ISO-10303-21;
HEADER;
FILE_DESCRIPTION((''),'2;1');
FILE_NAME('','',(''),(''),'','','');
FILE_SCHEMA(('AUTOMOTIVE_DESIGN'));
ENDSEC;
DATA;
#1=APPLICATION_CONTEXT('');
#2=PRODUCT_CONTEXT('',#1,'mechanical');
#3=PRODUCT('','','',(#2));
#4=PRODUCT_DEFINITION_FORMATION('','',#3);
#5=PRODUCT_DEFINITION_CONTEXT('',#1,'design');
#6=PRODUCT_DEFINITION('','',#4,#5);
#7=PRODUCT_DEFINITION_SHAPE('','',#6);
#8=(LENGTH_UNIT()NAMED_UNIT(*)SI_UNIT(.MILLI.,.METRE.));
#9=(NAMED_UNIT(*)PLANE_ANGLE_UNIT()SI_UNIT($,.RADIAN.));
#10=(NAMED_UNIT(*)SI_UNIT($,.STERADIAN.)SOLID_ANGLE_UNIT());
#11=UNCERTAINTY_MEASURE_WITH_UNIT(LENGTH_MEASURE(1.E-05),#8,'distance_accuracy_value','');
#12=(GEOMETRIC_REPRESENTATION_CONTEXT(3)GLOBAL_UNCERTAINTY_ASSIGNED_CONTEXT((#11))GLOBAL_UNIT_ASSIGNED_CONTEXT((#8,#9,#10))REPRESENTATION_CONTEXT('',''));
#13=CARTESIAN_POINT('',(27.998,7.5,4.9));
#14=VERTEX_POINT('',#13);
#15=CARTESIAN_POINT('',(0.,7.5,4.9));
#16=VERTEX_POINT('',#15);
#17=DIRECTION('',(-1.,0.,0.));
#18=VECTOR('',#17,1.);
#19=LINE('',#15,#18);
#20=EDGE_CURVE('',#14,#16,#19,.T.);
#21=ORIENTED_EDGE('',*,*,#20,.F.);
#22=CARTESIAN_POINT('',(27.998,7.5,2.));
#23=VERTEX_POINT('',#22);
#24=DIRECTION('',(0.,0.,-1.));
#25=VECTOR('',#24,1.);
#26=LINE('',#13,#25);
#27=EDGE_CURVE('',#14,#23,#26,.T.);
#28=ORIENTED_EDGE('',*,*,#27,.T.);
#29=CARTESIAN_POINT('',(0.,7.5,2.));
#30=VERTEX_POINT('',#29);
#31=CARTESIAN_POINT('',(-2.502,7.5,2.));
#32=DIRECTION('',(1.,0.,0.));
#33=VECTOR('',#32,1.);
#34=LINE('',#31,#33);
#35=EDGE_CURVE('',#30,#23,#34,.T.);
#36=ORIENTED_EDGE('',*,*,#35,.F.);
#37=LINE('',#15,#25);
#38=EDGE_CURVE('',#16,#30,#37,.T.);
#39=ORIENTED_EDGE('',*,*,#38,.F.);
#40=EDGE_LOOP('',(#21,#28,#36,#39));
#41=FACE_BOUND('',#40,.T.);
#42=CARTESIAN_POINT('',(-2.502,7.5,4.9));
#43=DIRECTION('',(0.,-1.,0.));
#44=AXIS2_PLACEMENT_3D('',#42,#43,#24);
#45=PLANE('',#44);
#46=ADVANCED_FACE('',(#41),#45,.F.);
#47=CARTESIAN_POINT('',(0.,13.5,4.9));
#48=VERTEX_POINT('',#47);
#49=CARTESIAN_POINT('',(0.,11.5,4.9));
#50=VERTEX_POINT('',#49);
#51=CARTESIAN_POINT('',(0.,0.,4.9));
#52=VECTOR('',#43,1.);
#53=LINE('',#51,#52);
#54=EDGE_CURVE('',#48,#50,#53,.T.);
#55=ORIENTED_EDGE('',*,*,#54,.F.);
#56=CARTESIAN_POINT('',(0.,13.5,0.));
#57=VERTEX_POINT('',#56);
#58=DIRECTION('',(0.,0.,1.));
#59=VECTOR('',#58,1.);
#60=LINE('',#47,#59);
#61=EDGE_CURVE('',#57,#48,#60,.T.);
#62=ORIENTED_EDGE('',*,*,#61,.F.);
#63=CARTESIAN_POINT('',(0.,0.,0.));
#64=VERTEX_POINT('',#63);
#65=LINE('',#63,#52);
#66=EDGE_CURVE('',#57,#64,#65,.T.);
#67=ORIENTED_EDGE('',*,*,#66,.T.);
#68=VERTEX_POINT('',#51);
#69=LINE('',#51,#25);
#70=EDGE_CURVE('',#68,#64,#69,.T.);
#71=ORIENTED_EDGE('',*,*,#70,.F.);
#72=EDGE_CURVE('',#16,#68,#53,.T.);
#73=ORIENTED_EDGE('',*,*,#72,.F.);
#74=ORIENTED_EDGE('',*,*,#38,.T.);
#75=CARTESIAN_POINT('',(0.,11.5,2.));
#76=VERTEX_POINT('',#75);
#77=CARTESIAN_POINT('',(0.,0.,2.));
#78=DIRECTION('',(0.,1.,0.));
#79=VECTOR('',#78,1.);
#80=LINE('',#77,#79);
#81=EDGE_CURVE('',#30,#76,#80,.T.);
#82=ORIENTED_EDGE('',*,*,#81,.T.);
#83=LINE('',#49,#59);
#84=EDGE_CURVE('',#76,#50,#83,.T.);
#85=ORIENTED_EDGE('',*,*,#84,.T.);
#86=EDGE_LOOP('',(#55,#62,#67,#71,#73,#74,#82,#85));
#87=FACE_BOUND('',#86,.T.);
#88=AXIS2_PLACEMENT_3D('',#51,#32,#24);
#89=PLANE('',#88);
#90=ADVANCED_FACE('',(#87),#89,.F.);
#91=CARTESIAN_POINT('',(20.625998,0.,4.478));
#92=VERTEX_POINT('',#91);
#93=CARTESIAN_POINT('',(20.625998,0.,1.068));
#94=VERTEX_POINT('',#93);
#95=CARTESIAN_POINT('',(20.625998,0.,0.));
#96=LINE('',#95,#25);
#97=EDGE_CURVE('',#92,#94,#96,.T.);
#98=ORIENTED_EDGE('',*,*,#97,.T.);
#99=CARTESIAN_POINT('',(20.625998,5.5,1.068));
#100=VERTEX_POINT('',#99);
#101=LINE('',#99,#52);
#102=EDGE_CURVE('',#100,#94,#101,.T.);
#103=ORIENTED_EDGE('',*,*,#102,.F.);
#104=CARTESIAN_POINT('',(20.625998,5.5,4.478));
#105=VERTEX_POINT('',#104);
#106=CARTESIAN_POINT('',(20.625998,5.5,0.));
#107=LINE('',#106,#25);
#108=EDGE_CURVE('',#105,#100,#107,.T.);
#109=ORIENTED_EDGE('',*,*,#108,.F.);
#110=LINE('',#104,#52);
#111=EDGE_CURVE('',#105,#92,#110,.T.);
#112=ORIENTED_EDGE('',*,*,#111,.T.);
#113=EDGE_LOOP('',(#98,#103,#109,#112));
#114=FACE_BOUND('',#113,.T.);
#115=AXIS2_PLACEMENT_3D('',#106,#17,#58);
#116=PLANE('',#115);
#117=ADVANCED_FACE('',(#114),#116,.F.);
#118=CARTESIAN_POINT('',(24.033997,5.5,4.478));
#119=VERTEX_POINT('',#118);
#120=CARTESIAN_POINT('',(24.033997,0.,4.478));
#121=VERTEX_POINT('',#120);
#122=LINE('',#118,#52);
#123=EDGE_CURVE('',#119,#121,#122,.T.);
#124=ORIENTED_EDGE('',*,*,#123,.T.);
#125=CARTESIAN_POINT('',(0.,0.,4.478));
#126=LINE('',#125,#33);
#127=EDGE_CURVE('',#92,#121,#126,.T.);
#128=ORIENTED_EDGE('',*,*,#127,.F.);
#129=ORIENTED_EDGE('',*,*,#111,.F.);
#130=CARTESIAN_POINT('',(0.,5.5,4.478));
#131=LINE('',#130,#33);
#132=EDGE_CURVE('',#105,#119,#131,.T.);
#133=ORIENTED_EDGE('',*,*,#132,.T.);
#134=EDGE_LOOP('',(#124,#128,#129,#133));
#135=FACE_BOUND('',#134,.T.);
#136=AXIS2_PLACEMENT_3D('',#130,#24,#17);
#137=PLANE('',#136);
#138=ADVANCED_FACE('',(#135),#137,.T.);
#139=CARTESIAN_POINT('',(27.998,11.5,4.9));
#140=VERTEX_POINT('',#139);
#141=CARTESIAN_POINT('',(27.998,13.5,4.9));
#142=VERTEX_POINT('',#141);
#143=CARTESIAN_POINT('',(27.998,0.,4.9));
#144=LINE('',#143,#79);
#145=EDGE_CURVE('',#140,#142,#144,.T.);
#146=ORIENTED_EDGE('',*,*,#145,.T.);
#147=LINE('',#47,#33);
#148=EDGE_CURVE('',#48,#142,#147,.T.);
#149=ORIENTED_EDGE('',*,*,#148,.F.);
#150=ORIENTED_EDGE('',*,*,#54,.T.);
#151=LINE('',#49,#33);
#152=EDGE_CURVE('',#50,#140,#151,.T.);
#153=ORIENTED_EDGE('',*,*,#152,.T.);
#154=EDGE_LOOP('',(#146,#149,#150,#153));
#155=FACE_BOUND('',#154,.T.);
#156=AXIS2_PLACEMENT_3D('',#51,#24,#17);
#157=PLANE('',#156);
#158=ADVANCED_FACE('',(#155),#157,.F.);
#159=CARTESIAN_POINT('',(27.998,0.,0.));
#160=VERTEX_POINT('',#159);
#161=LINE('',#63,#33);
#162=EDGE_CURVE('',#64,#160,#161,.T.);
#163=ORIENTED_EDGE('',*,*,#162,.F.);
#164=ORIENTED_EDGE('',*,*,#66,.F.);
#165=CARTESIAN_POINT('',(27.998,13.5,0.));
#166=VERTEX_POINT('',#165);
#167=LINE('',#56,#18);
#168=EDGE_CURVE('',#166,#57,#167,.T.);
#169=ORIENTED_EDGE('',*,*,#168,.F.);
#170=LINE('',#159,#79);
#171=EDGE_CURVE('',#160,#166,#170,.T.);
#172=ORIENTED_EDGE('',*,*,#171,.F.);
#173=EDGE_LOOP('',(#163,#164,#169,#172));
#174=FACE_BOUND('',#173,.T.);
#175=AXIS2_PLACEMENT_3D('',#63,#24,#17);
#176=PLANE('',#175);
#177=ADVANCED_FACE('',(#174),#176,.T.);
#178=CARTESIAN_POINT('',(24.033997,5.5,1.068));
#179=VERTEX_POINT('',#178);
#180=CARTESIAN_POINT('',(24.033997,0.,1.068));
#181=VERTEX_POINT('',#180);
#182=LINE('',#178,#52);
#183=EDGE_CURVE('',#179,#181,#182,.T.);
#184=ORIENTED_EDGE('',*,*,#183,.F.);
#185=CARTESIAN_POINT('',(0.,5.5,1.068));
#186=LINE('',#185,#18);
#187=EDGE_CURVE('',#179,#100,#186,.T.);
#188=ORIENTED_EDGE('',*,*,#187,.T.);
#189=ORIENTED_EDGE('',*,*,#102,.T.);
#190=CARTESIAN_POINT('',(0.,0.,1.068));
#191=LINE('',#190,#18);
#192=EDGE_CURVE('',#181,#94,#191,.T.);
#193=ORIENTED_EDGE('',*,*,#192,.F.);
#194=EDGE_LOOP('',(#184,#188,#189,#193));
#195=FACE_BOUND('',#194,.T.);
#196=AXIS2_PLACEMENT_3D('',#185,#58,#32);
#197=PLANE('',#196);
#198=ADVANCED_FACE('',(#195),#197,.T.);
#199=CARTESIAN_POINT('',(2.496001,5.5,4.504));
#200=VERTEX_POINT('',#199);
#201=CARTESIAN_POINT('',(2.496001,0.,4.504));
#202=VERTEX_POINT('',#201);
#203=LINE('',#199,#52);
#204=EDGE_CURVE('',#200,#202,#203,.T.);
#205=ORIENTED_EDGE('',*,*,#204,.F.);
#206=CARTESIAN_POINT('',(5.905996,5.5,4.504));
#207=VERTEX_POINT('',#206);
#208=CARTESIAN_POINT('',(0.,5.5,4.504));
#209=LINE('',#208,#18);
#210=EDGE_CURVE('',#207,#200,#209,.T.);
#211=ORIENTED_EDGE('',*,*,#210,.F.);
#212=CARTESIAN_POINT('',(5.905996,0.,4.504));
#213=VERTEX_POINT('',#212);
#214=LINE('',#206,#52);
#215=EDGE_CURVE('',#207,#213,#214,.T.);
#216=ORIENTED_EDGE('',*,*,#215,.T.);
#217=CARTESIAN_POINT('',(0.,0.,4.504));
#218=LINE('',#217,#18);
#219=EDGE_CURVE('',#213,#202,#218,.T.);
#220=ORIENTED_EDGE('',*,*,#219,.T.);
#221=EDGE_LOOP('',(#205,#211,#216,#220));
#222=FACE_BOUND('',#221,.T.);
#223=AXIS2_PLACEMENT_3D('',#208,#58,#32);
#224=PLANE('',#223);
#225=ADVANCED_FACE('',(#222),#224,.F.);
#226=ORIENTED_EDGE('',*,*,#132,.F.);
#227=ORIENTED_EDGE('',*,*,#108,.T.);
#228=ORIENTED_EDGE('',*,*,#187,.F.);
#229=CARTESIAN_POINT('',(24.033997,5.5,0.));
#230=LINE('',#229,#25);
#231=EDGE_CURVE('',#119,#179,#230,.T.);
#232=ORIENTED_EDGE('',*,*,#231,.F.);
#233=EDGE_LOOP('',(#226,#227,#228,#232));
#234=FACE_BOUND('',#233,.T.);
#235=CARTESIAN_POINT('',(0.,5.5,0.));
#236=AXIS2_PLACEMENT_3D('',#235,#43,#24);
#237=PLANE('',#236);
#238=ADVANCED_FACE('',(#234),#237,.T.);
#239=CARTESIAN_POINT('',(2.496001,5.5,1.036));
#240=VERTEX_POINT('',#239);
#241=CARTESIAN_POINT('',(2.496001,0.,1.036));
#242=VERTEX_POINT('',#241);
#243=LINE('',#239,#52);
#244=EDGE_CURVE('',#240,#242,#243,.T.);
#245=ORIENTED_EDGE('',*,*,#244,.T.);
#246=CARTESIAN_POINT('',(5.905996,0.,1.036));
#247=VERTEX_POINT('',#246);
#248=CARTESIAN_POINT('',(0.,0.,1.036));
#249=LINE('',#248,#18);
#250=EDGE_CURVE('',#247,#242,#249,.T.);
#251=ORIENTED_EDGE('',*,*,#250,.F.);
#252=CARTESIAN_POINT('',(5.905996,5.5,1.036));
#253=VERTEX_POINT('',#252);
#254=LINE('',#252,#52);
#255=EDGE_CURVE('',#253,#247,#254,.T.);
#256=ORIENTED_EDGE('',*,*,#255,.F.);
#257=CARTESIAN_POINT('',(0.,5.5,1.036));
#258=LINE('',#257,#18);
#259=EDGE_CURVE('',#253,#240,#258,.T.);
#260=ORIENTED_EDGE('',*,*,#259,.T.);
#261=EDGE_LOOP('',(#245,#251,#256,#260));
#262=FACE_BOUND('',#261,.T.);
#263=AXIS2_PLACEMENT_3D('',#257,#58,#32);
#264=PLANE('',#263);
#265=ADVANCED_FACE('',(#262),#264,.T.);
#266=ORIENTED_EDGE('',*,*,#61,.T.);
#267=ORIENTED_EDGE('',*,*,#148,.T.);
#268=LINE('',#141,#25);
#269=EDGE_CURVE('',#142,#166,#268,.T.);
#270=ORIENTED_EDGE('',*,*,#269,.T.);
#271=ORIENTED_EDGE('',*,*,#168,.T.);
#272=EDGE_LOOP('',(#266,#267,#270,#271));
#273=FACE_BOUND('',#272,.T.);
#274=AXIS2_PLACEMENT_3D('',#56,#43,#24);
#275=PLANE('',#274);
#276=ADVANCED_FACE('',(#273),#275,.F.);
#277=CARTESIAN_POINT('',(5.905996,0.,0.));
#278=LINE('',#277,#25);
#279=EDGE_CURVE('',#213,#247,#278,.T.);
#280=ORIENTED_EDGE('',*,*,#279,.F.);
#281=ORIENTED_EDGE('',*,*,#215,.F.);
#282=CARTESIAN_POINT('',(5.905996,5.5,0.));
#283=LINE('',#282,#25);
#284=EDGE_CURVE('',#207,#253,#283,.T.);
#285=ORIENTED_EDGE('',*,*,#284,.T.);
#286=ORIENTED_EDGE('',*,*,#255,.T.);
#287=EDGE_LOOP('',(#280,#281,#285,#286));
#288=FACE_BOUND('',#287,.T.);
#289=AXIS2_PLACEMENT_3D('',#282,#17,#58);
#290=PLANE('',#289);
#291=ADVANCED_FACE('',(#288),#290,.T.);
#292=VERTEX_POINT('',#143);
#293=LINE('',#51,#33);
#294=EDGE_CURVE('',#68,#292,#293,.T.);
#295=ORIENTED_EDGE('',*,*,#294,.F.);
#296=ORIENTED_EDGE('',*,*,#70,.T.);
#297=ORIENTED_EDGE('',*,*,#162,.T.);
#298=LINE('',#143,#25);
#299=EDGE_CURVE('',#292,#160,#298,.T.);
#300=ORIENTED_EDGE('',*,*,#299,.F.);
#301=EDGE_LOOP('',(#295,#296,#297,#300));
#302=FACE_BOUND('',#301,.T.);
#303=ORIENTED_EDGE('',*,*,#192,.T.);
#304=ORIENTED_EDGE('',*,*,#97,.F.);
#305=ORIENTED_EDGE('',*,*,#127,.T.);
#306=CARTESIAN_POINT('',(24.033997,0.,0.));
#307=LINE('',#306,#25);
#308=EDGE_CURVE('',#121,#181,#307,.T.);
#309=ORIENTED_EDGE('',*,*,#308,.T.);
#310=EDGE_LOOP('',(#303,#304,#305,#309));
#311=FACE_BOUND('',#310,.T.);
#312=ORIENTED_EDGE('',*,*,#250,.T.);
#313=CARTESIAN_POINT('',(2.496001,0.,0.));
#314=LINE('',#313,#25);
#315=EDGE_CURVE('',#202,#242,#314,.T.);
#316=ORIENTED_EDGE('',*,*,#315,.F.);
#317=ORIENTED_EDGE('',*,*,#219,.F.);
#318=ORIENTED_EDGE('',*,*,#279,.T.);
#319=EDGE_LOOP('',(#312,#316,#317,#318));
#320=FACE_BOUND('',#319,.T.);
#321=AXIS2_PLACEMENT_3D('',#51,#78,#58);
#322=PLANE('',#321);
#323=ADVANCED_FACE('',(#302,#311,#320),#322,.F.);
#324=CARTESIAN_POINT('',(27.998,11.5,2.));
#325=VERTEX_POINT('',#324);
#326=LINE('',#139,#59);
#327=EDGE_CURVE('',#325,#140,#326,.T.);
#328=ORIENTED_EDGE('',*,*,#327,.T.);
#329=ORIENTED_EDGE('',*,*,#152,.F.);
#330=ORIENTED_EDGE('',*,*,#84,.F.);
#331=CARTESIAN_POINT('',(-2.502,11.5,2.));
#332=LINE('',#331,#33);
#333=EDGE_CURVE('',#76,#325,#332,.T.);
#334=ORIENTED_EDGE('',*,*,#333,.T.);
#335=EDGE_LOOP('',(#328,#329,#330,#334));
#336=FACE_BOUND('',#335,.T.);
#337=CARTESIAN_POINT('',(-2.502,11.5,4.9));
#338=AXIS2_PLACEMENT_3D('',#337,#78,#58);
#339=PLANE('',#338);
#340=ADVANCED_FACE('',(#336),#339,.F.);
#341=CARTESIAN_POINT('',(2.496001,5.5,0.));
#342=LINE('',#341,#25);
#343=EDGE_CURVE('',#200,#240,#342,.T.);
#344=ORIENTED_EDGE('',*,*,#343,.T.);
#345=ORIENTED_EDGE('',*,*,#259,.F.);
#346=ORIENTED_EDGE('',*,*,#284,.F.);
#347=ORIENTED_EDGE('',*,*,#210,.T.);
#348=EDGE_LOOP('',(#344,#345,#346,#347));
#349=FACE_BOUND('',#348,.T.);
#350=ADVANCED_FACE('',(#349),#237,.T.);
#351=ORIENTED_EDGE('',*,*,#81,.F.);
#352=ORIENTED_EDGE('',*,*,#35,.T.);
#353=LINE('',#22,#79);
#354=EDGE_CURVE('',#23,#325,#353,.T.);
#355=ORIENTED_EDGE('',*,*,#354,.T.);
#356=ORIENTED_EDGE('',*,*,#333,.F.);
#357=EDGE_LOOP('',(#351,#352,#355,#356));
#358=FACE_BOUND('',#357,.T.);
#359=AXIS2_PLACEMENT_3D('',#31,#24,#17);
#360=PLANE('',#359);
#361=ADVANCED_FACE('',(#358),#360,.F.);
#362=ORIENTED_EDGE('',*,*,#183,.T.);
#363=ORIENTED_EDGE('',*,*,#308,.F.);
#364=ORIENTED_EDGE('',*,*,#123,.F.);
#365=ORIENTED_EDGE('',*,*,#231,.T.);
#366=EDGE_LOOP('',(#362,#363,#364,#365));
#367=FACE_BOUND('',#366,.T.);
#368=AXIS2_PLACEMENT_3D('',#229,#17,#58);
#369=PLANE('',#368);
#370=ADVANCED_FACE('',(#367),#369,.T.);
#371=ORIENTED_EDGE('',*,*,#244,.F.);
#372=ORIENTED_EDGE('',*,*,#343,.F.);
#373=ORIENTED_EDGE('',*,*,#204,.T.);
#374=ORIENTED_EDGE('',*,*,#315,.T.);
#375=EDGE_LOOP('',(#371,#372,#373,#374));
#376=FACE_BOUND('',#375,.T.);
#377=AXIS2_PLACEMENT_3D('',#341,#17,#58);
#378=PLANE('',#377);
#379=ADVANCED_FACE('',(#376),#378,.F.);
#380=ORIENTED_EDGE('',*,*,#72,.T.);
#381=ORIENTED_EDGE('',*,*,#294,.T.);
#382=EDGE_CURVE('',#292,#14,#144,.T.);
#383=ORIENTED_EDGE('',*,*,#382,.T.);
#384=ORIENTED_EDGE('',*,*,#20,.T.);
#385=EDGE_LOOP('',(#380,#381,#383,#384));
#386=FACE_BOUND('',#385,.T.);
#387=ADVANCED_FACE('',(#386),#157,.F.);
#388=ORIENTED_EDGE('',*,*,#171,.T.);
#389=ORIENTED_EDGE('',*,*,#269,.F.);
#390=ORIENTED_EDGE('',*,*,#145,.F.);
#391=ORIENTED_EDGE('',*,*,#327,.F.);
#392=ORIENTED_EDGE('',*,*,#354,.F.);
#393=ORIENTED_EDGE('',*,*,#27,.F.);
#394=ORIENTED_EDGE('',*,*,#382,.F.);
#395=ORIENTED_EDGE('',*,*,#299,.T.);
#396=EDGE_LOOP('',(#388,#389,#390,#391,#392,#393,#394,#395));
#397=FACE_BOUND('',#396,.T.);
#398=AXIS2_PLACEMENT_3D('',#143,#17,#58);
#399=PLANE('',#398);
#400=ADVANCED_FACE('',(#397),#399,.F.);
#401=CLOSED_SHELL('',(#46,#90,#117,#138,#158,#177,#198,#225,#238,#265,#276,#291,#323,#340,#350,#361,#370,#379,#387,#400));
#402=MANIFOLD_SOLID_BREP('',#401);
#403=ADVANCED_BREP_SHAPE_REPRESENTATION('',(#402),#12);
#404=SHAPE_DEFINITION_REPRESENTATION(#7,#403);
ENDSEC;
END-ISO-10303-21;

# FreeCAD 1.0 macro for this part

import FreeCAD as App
import Part
import Sketcher
from FreeCAD import Vector
Q = App.Units.Quantity


def add_polygon(sketch, points):
    """Adds a closed chain of lines whose ends are joined by coincident constraints."""
    first, n = sketch.GeometryCount, len(points)
    for a, b in zip(points, points[1:] + points[:1]):
        sketch.addGeometry(Part.LineSegment(App.Vector(*a, 0), App.Vector(*b, 0)), False)
    for i in range(n):
        sketch.addConstraint(Sketcher.Constraint("Coincident", first + i, 2, first + (i + 1) % n, 1))

doc = App.newDocument("Part")
params = doc.addObject("Spreadsheet::Sheet", "Params")
for row, (alias, value) in enumerate([
    ("sketch1_height", "15 mm"),
    ("pad1_length", "4.9 mm"),
    ("sketch2_height", "3.41 mm"),
    ("pocket1_length", "5.5 mm"),
    ("sketch3_width", "4 mm"),
    ("sketch3_height", "2.9 mm"),
    ("pocket2_length", "30.5 mm"),
    ("sketch4_height", "4.9 mm"),
    ("pocket3_length", "1.5 mm"),
], start=1):
    params.set(f"A{row}", alias)
    params.set(f"B{row}", "=" + value)
    params.setAlias(f"B{row}", alias)

body = doc.addObject("PartDesign::Body", "Body")

# Sketch on XY plane
sketch1 = doc.addObject("Sketcher::SketchObject", "Sketch")
body.addObject(sketch1)
sketch1.AttachmentSupport = (doc.XY_Plane, [""])
sketch1.MapMode = "FlatFace"
add_polygon(sketch1, [(0, 15), (0, 0), (28, 0), (28, 15)])  # lines 0-3
sketch1.addConstraint([
    Sketcher.Constraint("Vertical", 0),
    Sketcher.Constraint("Horizontal", 1),
    Sketcher.Constraint("Vertical", 2),
    Sketcher.Constraint("Horizontal", 3),
    Sketcher.Constraint("Coincident", 0, 2, -1, 1),
    Sketcher.Constraint("DistanceY", 0, 2, 0, 1, Q("15 mm")),
    Sketcher.Constraint("DistanceX", 1, 1, 1, 2, Q("27.998 mm")),
])
sketch1.setExpression("Constraints[9]", "Params.sketch1_height")
pad1 = doc.addObject("PartDesign::Pad", "Pad")
body.addObject(pad1)
pad1.Profile = sketch1
pad1.setExpression("Length", "Params.pad1_length")

# Sketch on XZ plane
sketch2 = doc.addObject("Sketcher::SketchObject", "Sketch001")
body.addObject(sketch2)
sketch2.AttachmentSupport = (doc.XZ_Plane, [""])
sketch2.MapMode = "FlatFace"
add_polygon(sketch2, [(20.6, 4.5), (20.6, 1.1), (24, 1.1), (24, 4.5)])  # lines 0-3
add_polygon(sketch2, [(2.5, 4.5), (2.5, 1), (5.9, 1), (5.9, 4.5)])  # lines 4-7
sketch2.addConstraint([
    Sketcher.Constraint("Vertical", 0),
    Sketcher.Constraint("Horizontal", 1),
    Sketcher.Constraint("Vertical", 2),
    Sketcher.Constraint("Horizontal", 3),
    Sketcher.Constraint("Vertical", 4),
    Sketcher.Constraint("Horizontal", 5),
    Sketcher.Constraint("Vertical", 6),
    Sketcher.Constraint("Horizontal", 7),
    Sketcher.Constraint("DistanceY", 0, 2, 0, 1, Q("3.41 mm")),
    Sketcher.Constraint("DistanceX", 1, 1, 1, 2, Q("3.407999 mm")),
    Sketcher.Constraint("DistanceY", 4, 2, 4, 1, Q("3.468 mm")),
    Sketcher.Constraint("DistanceX", 5, 2, 0, 2, Q("14.720001 mm")),
    Sketcher.Constraint("DistanceY", -1, 1, 0, 2, Q("1.068 mm")),
    Sketcher.Constraint("DistanceX", -1, 1, 4, 2, Q("2.496001 mm")),
    Sketcher.Constraint("DistanceY", -1, 1, 4, 2, Q("1.036 mm")),
    Sketcher.Constraint("DistanceX", 5, 1, 5, 2, Q("3.409996 mm")),
])
sketch2.setExpression("Constraints[16]", "Params.sketch2_height")
pocket1 = doc.addObject("PartDesign::Pocket", "Pocket")
body.addObject(pocket1)
pocket1.Profile = sketch2
pocket1.setExpression("Length", "Params.pocket1_length")

# Sketch on YZ plane
sketch3 = doc.addObject("Sketcher::SketchObject", "Sketch002")
body.addObject(sketch3)
sketch3.AttachmentSupport = (doc.YZ_Plane, [""])
sketch3.MapMode = "FlatFace"
sketch3.AttachmentOffset = App.Placement(Vector(0, 0, 27.998), App.Rotation())
add_polygon(sketch3, [(11.5, 4.9), (7.5, 4.9), (7.5, 2), (11.5, 2)])  # lines 0-3
sketch3.addConstraint([
    Sketcher.Constraint("Horizontal", 0),
    Sketcher.Constraint("Vertical", 1),
    Sketcher.Constraint("Horizontal", 2),
    Sketcher.Constraint("Vertical", 3),
    Sketcher.Constraint("DistanceX", 0, 2, 0, 1, Q("4 mm")),
    Sketcher.Constraint("DistanceY", 1, 2, 1, 1, Q("2.9 mm")),
    Sketcher.Constraint("DistanceY", -1, 1, 1, 2, Q("2 mm")),
    Sketcher.Constraint("DistanceX", -1, 1, 0, 2, Q("7.5 mm")),
])
sketch3.setExpression("Constraints[8]", "Params.sketch3_width")
sketch3.setExpression("Constraints[9]", "Params.sketch3_height")
pocket2 = doc.addObject("PartDesign::Pocket", "Pocket001")
body.addObject(pocket2)
pocket2.Profile = sketch3
pocket2.setExpression("Length", "Params.pocket2_length")

# Sketch on XZ plane
sketch4 = doc.addObject("Sketcher::SketchObject", "Sketch003")
body.addObject(sketch4)
sketch4.AttachmentSupport = (doc.XZ_Plane, [""])
sketch4.MapMode = "FlatFace"
sketch4.AttachmentOffset = App.Placement(Vector(0, 0, -15), App.Rotation())
add_polygon(sketch4, [(0, 0), (0, 4.9), (28, 4.9), (28, 0)])  # lines 0-3
sketch4.addConstraint([
    Sketcher.Constraint("Vertical", 0),
    Sketcher.Constraint("Horizontal", 1),
    Sketcher.Constraint("Vertical", 2),
    Sketcher.Constraint("Horizontal", 3),
    Sketcher.Constraint("Coincident", 3, 2, -1, 1),
    Sketcher.Constraint("DistanceY", 0, 1, 0, 2, Q("4.9 mm")),
    Sketcher.Constraint("DistanceX", 1, 1, 1, 2, Q("27.998 mm")),
])
sketch4.setExpression("Constraints[9]", "Params.sketch4_height")
pocket3 = doc.addObject("PartDesign::Pocket", "Pocket002")
body.addObject(pocket3)
pocket3.Profile = sketch4
pocket3.setExpression("Length", "Params.pocket3_length")
pocket3.Reversed = True

doc.recompute()
